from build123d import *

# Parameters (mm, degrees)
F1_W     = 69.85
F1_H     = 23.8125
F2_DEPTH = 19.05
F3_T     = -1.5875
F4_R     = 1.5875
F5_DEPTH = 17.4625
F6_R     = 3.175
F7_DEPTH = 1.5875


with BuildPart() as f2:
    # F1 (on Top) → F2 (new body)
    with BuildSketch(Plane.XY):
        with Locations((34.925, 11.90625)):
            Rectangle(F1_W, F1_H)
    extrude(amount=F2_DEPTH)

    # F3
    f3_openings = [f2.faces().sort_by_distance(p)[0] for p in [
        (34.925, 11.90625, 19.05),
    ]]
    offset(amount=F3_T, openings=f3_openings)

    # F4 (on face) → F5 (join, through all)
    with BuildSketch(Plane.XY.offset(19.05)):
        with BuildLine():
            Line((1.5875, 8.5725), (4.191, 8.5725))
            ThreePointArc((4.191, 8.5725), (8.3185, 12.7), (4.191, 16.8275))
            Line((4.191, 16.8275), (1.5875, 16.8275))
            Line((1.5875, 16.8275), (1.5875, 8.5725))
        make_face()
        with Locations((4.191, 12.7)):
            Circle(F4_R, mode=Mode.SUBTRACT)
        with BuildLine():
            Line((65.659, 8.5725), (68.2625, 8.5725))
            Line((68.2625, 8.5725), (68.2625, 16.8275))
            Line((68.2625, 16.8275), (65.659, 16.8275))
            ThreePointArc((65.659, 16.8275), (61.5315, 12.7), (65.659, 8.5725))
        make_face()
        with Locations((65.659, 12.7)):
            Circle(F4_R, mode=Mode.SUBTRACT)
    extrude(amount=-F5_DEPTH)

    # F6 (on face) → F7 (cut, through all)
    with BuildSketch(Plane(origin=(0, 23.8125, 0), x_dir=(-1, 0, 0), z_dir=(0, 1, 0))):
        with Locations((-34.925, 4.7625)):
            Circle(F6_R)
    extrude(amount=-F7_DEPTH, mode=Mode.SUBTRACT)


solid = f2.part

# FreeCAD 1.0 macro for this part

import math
import FreeCAD as App
import Part
import Sketcher

V = App.Vector
Q = App.Units.Quantity


def faces_at(feature, points):
    """Names of the faces that lie closest to the given points."""
    faces = feature.Shape.Faces
    near = lambda p: min(range(len(faces)), key=lambda i: faces[i].distToShape(Part.Vertex(*p))[0])
    return sorted({f"Face{near(p) + 1}" for p in points})


def add_polygon(sketch, points):
    """Adds a closed chain of lines whose ends are joined by coincident constraints."""
    first, n = sketch.GeometryCount, len(points)
    for a, b in zip(points, points[1:] + points[:1]):
        sketch.addGeometry(Part.LineSegment(App.Vector(*a, 0), App.Vector(*b, 0)), False)
    for i in range(n):
        sketch.addConstraint(Sketcher.Constraint("Coincident", first + i, 2, first + (i + 1) % n, 1))

doc = App.newDocument("Part")
params = doc.addObject("Spreadsheet::Sheet", "Params")
for row, (alias, value) in enumerate([
    ("sketch1_width", "2.75 in"),
    ("sketch1_height", "0.9375 in"),
    ("pad1_length", "0.75 in"),
    ("thickness_wall", "0.0625 in"),
    ("sketch2_diameter", "0.125 in"),
    ("sketch3_diameter", "0.25 in"),
    ("pocket1_length", "0.0625 in"),
], start=1):
    params.set(f"A{row}", alias)
    params.set(f"B{row}", "=" + value)
    params.setAlias(f"B{row}", alias)

body = doc.addObject("PartDesign::Body", "Body")

sketch1 = body.newObject("Sketcher::SketchObject", "Sketch")
sketch1.AttachmentSupport = (doc.getObject("XY_Plane"), [""])
sketch1.MapMode = "FlatFace"
add_polygon(sketch1, [(0, 23.8125), (0, 0), (69.85, 0), (69.85, 23.8125)])
sketch1.addConstraint(Sketcher.Constraint("Vertical", 0))
sketch1.addConstraint(Sketcher.Constraint("Horizontal", 1))
sketch1.addConstraint(Sketcher.Constraint("Vertical", 2))
sketch1.addConstraint(Sketcher.Constraint("Horizontal", 3))
sketch1.addConstraint(Sketcher.Constraint("Coincident", 0, 2, -1, 1))
sketch1.addConstraint(Sketcher.Constraint("DistanceX", 1, 1, 1, 2, Q("2.75 in")))
sketch1.addConstraint(Sketcher.Constraint("DistanceY", 0, 2, 0, 1, Q("0.9375 in")))
sketch1.setExpression("Constraints[9]", "Params.sketch1_width")
sketch1.setExpression("Constraints[10]", "Params.sketch1_height")
pad1 = body.newObject("PartDesign::Pad", "Pad")
pad1.Profile = sketch1
pad1.setExpression("Length", "Params.pad1_length")
doc.recompute()

thickness = body.newObject("PartDesign::Thickness", "Thickness")
thickness.Base = (pad1, faces_at(pad1, [(34.925, 11.906, 19.05)]))
thickness.setExpression("Value", "Params.thickness_wall")
thickness.Reversed = True
thickness.Join = "Arc"

sketch2 = body.newObject("Sketcher::SketchObject", "Sketch001")
sketch2.AttachmentSupport = (doc.getObject("XY_Plane"), [""])
sketch2.MapMode = "FlatFace"
sketch2.AttachmentOffset = App.Placement(V(0, 0, 0.75 * 25.4), App.Rotation())
sketch2.addGeometry(Part.LineSegment(V(1.5875, 8.5725, 0), V(4.191, 8.5725, 0)), False)
sketch2.addGeometry(Part.ArcOfCircle(Part.Circle(V(4.191, 12.7, 0), V(0, 0, 1), 4.1275), math.radians(-90), math.radians(90)), False)
sketch2.addGeometry(Part.LineSegment(V(4.191, 16.8275, 0), V(1.5875, 16.8275, 0)), False)
sketch2.addGeometry(Part.LineSegment(V(1.5875, 16.8275, 0), V(1.5875, 8.5725, 0)), False)
sketch2.addGeometry(Part.Circle(V(4.191, 12.7, 0), V(0, 0, 1), 1.5875), False)
sketch2.addGeometry(Part.LineSegment(V(65.659, 8.5725, 0), V(68.2625, 8.5725, 0)), False)
sketch2.addGeometry(Part.LineSegment(V(68.2625, 8.5725, 0), V(68.2625, 16.8275, 0)), False)
sketch2.addGeometry(Part.LineSegment(V(68.2625, 16.8275, 0), V(65.659, 16.8275, 0)), False)
sketch2.addGeometry(Part.ArcOfCircle(Part.Circle(V(65.659, 12.7, 0), V(0, 0, 1), 4.1275), math.radians(90), math.radians(270)), False)
sketch2.addGeometry(Part.Circle(V(65.659, 12.7, 0), V(0, 0, 1), 1.5875), False)
sketch2.addConstraint(Sketcher.Constraint("Tangent", 0, 2, 1, 1))
sketch2.addConstraint(Sketcher.Constraint("Tangent", 1, 2, 2, 1))
sketch2.addConstraint(Sketcher.Constraint("Coincident", 2, 2, 3, 1))
sketch2.addConstraint(Sketcher.Constraint("Coincident", 3, 2, 0, 1))
sketch2.addConstraint(Sketcher.Constraint("Coincident", 5, 2, 6, 1))
sketch2.addConstraint(Sketcher.Constraint("Coincident", 6, 2, 7, 1))
sketch2.addConstraint(Sketcher.Constraint("Tangent", 7, 2, 8, 1))
sketch2.addConstraint(Sketcher.Constraint("Tangent", 8, 2, 5, 1))
sketch2.addConstraint(Sketcher.Constraint("Horizontal", 0))
sketch2.addConstraint(Sketcher.Constraint("Horizontal", 2))
sketch2.addConstraint(Sketcher.Constraint("Vertical", 3))
sketch2.addConstraint(Sketcher.Constraint("Horizontal", 5))
sketch2.addConstraint(Sketcher.Constraint("Vertical", 6))
sketch2.addConstraint(Sketcher.Constraint("Horizontal", 7))
sketch2.addConstraint(Sketcher.Constraint("Coincident", 4, 3, 1, 3))
sketch2.addConstraint(Sketcher.Constraint("Coincident", 9, 3, 8, 3))
sketch2.addConstraint(Sketcher.Constraint("Equal", 1, 8))
sketch2.addConstraint(Sketcher.Constraint("Equal", 4, 9))
sketch2.addConstraint(Sketcher.Constraint("Horizontal", 4, 3, 8, 3))
sketch2.addConstraint(Sketcher.Constraint("Equal", 2, 5))
sketch2.addConstraint(Sketcher.Constraint("Diameter", 4, Q("0.125 in")))
sketch2.addConstraint(Sketcher.Constraint("DistanceY", -1, 1, 1, 3, Q("0.5 in")))
sketch2.addConstraint(Sketcher.Constraint("Radius", 1, Q("0.1625 in")))
sketch2.addConstraint(Sketcher.Constraint("DistanceX", 1, 3, 8, 3, Q("2.42 in")))
sketch2.addConstraint(Sketcher.Constraint("DistanceX", 0, 1, 0, 2, Q("0.1025 in")))
sketch2.addConstraint(Sketcher.Constraint("DistanceX", -1, 1, 1, 3, Q("0.165 in")))
sketch2.setExpression("Constraints[20]", "Params.sketch2_diameter")
pad2 = body.newObject("PartDesign::Pad", "Pad001")
pad2.Profile = sketch2
pad2.Type = "UpToLast"
pad2.Reversed = True

sketch3 = body.newObject("Sketcher::SketchObject", "Sketch002")
sketch3.AttachmentSupport = (doc.getObject("XZ_Plane"), [""])
sketch3.MapMode = "FlatFace"
sketch3.AttachmentOffset = App.Placement(V(0, 0, -0.9375 * 25.4), App.Rotation())
sketch3.addGeometry(Part.Circle(V(34.925, 4.7625, 0), V(0, 0, 1), 3.175), False)
sketch3.addConstraint(Sketcher.Constraint("Diameter", 0, Q("0.25 in")))
sketch3.addConstraint(Sketcher.Constraint("DistanceX", -1, 1, 0, 3, Q("1.375 in")))
sketch3.addConstraint(Sketcher.Constraint("DistanceY", -1, 1, 0, 3, Q("0.1875 in")))
sketch3.setExpression("Constraints[0]", "Params.sketch3_diameter")
pocket1 = body.newObject("PartDesign::Pocket", "Pocket")
pocket1.Profile = sketch3
pocket1.setExpression("Length", "Params.pocket1_length")
pocket1.Reversed = True

doc.recompute()
